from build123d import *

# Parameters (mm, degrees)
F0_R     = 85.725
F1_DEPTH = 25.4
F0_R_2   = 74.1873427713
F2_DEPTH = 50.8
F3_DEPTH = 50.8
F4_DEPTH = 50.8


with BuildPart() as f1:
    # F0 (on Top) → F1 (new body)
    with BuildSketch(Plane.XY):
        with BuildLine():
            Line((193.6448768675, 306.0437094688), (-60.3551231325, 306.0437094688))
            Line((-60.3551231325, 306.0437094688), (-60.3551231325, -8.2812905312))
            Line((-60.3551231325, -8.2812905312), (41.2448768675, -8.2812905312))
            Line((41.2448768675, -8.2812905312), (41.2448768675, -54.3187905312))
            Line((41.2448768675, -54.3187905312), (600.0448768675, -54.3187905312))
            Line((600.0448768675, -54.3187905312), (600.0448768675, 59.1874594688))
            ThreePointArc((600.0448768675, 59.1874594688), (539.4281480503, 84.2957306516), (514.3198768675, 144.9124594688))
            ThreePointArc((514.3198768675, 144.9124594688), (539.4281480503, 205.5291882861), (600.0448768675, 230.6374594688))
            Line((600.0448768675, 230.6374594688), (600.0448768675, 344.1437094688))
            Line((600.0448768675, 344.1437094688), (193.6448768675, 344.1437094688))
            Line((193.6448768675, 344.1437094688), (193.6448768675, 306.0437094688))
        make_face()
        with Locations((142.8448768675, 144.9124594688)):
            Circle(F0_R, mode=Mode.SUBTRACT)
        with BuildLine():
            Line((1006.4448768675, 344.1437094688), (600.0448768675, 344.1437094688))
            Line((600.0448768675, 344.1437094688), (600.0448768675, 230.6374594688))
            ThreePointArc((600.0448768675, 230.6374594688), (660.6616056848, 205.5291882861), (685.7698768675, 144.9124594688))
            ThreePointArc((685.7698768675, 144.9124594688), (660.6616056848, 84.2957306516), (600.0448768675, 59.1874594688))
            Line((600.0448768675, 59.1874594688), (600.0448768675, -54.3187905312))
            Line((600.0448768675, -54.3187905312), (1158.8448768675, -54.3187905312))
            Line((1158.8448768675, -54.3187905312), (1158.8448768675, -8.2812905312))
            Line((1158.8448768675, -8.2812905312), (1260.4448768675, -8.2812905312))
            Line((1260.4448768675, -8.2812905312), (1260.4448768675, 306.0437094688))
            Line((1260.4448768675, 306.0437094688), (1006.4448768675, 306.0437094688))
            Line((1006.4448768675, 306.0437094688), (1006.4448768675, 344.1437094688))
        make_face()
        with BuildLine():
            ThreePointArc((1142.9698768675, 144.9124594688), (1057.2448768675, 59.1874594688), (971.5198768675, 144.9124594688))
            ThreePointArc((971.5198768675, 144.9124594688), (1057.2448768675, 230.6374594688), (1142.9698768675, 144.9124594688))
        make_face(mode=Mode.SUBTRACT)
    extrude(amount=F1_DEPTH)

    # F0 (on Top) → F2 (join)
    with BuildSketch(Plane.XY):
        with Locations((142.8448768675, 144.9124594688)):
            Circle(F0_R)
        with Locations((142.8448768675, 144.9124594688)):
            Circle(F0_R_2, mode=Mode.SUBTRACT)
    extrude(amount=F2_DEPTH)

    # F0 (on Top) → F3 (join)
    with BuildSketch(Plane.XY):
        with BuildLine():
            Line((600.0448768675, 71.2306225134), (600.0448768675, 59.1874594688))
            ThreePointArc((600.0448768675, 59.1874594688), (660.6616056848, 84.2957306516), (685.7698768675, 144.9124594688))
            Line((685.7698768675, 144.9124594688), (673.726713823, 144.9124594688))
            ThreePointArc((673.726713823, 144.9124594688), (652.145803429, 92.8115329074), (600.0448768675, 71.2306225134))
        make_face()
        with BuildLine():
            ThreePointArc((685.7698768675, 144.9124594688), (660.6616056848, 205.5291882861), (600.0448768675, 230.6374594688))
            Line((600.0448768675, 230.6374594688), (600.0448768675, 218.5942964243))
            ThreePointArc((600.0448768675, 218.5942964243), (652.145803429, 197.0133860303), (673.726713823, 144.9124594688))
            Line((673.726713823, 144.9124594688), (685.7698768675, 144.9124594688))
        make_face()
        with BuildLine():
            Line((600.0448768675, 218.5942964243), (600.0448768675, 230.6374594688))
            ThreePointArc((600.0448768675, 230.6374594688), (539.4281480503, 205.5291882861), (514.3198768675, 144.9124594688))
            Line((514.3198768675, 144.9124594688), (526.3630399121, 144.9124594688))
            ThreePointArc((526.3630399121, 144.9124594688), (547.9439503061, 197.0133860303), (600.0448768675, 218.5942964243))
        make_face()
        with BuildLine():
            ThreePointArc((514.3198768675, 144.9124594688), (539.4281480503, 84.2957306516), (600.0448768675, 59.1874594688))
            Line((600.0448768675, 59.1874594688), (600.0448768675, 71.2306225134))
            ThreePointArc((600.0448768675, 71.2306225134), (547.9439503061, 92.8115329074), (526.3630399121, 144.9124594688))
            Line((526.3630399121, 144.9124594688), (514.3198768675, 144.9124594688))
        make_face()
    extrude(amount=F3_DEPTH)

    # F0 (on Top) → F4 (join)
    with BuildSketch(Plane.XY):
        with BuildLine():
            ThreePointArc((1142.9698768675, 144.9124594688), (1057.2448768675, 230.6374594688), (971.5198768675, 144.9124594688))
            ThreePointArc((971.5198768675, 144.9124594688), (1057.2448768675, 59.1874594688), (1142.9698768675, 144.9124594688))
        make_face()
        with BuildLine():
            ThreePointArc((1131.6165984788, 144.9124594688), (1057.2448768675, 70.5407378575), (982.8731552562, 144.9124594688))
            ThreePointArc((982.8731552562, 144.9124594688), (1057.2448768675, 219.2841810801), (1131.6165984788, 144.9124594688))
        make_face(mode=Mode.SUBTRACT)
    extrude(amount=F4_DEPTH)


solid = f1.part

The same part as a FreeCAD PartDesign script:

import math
import FreeCAD as App
import Part
import Sketcher
Q = App.Units.Quantity


def add_polygon(sketch, points):
    """Adds a closed chain of lines whose ends are joined by coincident constraints."""
    first, n = sketch.GeometryCount, len(points)
    for a, b in zip(points, points[1:] + points[:1]):
        sketch.addGeometry(Part.LineSegment(App.Vector(*a, 0), App.Vector(*b, 0)), False)
    for i in range(n):
        sketch.addConstraint(Sketcher.Constraint("Coincident", first + i, 2, first + (i + 1) % n, 1))

doc = App.newDocument("Part")
body = doc.addObject("PartDesign::Body", "Body")

# Sketch on XY plane
sketch1 = body.newObject("Sketcher::SketchObject", "Sketch")
sketch1.AttachmentSupport = (doc.getObject("XY_Plane"), [""])
sketch1.MapMode = "FlatFace"
add_polygon(sketch1, [(194, 306), (-60, 306), (-60, -8), (41, -8), (41, -54), (1159, -54), (1159, -8), (1260, -8), (1260, 306), (1006, 306), (1006, 344), (194, 344)])  # lines 0-11
sketch1.addGeometry(Part.Circle(App.Vector(1057, 145, 0), App.Vector(0, 0, 1), 86), False)  # 12
sketch1.addGeometry(Part.Circle(App.Vector(143, 145, 0), App.Vector(0, 0, 1), 86), False)  # 13
sketch1.addGeometry(Part.ArcOfCircle(Part.Circle(App.Vector(600, 145, 0), App.Vector(0, 0, 1), 86), math.radians(0), math.radians(90)), False)  # 14
sketch1.addGeometry(Part.ArcOfCircle(Part.Circle(App.Vector(600, 145, 0), App.Vector(0, 0, 1), 86), math.radians(90), math.radians(360)), False)  # 15
sketch1.addConstraint([
    Sketcher.Constraint("Tangent", 14, 1, 15, 2),
    Sketcher.Constraint("Coincident", 15, 1, 14, 2),
    Sketcher.Constraint("Horizontal", 0),
    Sketcher.Constraint("Vertical", 1),
    Sketcher.Constraint("Horizontal", 2),
    Sketcher.Constraint("Vertical", 3),
    Sketcher.Constraint("Horizontal", 4),
    Sketcher.Constraint("Vertical", 5),
    Sketcher.Constraint("Horizontal", 6),
    Sketcher.Constraint("Vertical", 7),
    Sketcher.Constraint("Horizontal", 8),
    Sketcher.Constraint("Vertical", 9),
    Sketcher.Constraint("Horizontal", 10),
    Sketcher.Constraint("Vertical", 11),
    Sketcher.Constraint("Equal", 12, 13),
    Sketcher.Constraint("Equal", 13, 14),
    Sketcher.Constraint("Horizontal", 12, 3, 13, 3),
    Sketcher.Constraint("Horizontal", 13, 3, 14, 3),
    Sketcher.Constraint("Horizontal", 2, 2, 5, 2),
    Sketcher.Constraint("Horizontal", 0, 2, 7, 2),
    Sketcher.Constraint("Horizontal", 15, 3, 14, 1),
    Sketcher.Constraint("Vertical", 14, 3, 15, 1),
    Sketcher.Constraint("Equal", 2, 6),
    Sketcher.Constraint("Equal", 0, 8),
    Sketcher.Constraint("Diameter", 12, Q("6.75 in")),
    Sketcher.Constraint("DistanceX", 0, 2, 0, 1, Q("10 in")),
    Sketcher.Constraint("DistanceX", 2, 1, 2, 2, Q("4 in")),
    Sketcher.Constraint("DistanceX", 4, 1, 4, 2, Q("44 in")),
    Sketcher.Constraint("DistanceY", 9, 1, 9, 2, Q("1.5 in")),
    Sketcher.Constraint("DistanceX", 13, 3, 12, 3, Q("36 in")),
    Sketcher.Constraint("DistanceX", 14, 3, 12, 3, Q("18 in")),
    Sketcher.Constraint("DistanceX", 0, 2, 13, 3, Q("8 in")),
    Sketcher.Constraint("DistanceY", 1, 2, 1, 1, Q("12.375 in")),
    Sketcher.Constraint("DistanceY", 3, 2, 3, 1, Q("1.8125 in")),
    Sketcher.Constraint("DistanceY", 13, 3, 0, 2, Q("6.34375 in")),
    Sketcher.Constraint("DistanceY", -1, 1, 12, 3, 144.912459),
    Sketcher.Constraint("DistanceX", -1, 1, 12, 3, 1057.244877),
])
pad1 = body.newObject("PartDesign::Pad", "Pad")
pad1.Profile = sketch1
pad1.Length = Q("1 in")

# Sketch on XY plane
sketch2 = body.newObject("Sketcher::SketchObject", "Sketch001")
sketch2.AttachmentSupport = (doc.getObject("XY_Plane"), [""])
sketch2.MapMode = "FlatFace"
sketch2.addGeometry([
    Part.Circle(App.Vector(143, 145, 0), App.Vector(0, 0, 1), 86),
    Part.Circle(App.Vector(143, 145, 0), App.Vector(0, 0, 1), 74),
], False)
sketch2.addConstraint([
    Sketcher.Constraint("Coincident", 1, 3, 0, 3),
    Sketcher.Constraint("Diameter", 0, Q("6.75 in")),
    Sketcher.Constraint("Diameter", 1, 148.374686),
    Sketcher.Constraint("DistanceY", -1, 1, 0, 3, 144.912459),
    Sketcher.Constraint("DistanceX", -1, 1, 0, 3, 142.844877),
])
pad2 = body.newObject("PartDesign::Pad", "Pad001")
pad2.Profile = sketch2
pad2.Length = Q("2 in")

# Sketch on XY plane
sketch3 = body.newObject("Sketcher::SketchObject", "Sketch002")
sketch3.AttachmentSupport = (doc.getObject("XY_Plane"), [""])
sketch3.MapMode = "FlatFace"
sketch3.addGeometry([
    Part.ArcOfCircle(Part.Circle(App.Vector(600, 145, 0), App.Vector(0, 0, 1), 86), math.radians(0), math.radians(90)),  # 0
    Part.ArcOfCircle(Part.Circle(App.Vector(600, 145, 0), App.Vector(0, 0, 1), 86), math.radians(90), math.radians(360)),  # 1
    Part.ArcOfCircle(Part.Circle(App.Vector(600, 145, 0), App.Vector(0, 0, 1), 74), math.radians(90), math.radians(180)),  # 2
    Part.ArcOfCircle(Part.Circle(App.Vector(600, 145, 0), App.Vector(0, 0, 1), 74), math.radians(0), math.radians(90)),  # 3
    Part.ArcOfCircle(Part.Circle(App.Vector(600, 145, 0), App.Vector(0, 0, 1), 74), math.radians(-90), math.radians(0)),  # 4
    Part.ArcOfCircle(Part.Circle(App.Vector(600, 145, 0), App.Vector(0, 0, 1), 74), math.radians(180), math.radians(270)),  # 5
], False)
sketch3.addConstraint([
    Sketcher.Constraint("Tangent", 0, 1, 1, 2),
    Sketcher.Constraint("Coincident", 1, 1, 0, 2),
    Sketcher.Constraint("Tangent", 2, 1, 3, 2),
    Sketcher.Constraint("Tangent", 3, 1, 4, 2),
    Sketcher.Constraint("Tangent", 4, 1, 5, 2),
    Sketcher.Constraint("Tangent", 5, 1, 2, 2),
    Sketcher.Constraint("Coincident", 2, 3, 0, 3),
    Sketcher.Constraint("Equal", 2, 3),
    Sketcher.Constraint("Horizontal", 5, 3, 0, 1),
    Sketcher.Constraint("Horizontal", 0, 1, 3, 1),
    Sketcher.Constraint("Horizontal", 3, 1, 5, 1),
    Sketcher.Constraint("Vertical", 5, 3, 1, 1),
    Sketcher.Constraint("Vertical", 1, 1, 2, 1),
    Sketcher.Constraint("Vertical", 2, 1, 4, 1),
    Sketcher.Constraint("Radius", 0, Q("3.375 in")),
    Sketcher.Constraint("Radius", 2, 73.681837),
    Sketcher.Constraint("DistanceY", -1, 1, 0, 3, 144.912459),
    Sketcher.Constraint("DistanceX", -1, 1, 5, 1, 526.36304),
])
pad3 = body.newObject("PartDesign::Pad", "Pad002")
pad3.Profile = sketch3
pad3.Length = Q("2 in")

# Sketch on XY plane
sketch4 = body.newObject("Sketcher::SketchObject", "Sketch003")
sketch4.AttachmentSupport = (doc.getObject("XY_Plane"), [""])
sketch4.MapMode = "FlatFace"
sketch4.addGeometry([
    Part.Circle(App.Vector(1057, 145, 0), App.Vector(0, 0, 1), 86),
    Part.Circle(App.Vector(1057, 145, 0), App.Vector(0, 0, 1), 74),
], False)
sketch4.addConstraint([
    Sketcher.Constraint("Coincident", 1, 3, 0, 3),
    Sketcher.Constraint("Diameter", 0, Q("6.75 in")),
    Sketcher.Constraint("Diameter", 1, 148.743443),
    Sketcher.Constraint("DistanceY", -1, 1, 0, 3, 144.912459),
    Sketcher.Constraint("DistanceX", -1, 1, 0, 3, 1057.244877),
])
pad4 = body.newObject("PartDesign::Pad", "Pad003")
pad4.Profile = sketch4
pad4.Length = Q("2 in")

doc.recompute()
